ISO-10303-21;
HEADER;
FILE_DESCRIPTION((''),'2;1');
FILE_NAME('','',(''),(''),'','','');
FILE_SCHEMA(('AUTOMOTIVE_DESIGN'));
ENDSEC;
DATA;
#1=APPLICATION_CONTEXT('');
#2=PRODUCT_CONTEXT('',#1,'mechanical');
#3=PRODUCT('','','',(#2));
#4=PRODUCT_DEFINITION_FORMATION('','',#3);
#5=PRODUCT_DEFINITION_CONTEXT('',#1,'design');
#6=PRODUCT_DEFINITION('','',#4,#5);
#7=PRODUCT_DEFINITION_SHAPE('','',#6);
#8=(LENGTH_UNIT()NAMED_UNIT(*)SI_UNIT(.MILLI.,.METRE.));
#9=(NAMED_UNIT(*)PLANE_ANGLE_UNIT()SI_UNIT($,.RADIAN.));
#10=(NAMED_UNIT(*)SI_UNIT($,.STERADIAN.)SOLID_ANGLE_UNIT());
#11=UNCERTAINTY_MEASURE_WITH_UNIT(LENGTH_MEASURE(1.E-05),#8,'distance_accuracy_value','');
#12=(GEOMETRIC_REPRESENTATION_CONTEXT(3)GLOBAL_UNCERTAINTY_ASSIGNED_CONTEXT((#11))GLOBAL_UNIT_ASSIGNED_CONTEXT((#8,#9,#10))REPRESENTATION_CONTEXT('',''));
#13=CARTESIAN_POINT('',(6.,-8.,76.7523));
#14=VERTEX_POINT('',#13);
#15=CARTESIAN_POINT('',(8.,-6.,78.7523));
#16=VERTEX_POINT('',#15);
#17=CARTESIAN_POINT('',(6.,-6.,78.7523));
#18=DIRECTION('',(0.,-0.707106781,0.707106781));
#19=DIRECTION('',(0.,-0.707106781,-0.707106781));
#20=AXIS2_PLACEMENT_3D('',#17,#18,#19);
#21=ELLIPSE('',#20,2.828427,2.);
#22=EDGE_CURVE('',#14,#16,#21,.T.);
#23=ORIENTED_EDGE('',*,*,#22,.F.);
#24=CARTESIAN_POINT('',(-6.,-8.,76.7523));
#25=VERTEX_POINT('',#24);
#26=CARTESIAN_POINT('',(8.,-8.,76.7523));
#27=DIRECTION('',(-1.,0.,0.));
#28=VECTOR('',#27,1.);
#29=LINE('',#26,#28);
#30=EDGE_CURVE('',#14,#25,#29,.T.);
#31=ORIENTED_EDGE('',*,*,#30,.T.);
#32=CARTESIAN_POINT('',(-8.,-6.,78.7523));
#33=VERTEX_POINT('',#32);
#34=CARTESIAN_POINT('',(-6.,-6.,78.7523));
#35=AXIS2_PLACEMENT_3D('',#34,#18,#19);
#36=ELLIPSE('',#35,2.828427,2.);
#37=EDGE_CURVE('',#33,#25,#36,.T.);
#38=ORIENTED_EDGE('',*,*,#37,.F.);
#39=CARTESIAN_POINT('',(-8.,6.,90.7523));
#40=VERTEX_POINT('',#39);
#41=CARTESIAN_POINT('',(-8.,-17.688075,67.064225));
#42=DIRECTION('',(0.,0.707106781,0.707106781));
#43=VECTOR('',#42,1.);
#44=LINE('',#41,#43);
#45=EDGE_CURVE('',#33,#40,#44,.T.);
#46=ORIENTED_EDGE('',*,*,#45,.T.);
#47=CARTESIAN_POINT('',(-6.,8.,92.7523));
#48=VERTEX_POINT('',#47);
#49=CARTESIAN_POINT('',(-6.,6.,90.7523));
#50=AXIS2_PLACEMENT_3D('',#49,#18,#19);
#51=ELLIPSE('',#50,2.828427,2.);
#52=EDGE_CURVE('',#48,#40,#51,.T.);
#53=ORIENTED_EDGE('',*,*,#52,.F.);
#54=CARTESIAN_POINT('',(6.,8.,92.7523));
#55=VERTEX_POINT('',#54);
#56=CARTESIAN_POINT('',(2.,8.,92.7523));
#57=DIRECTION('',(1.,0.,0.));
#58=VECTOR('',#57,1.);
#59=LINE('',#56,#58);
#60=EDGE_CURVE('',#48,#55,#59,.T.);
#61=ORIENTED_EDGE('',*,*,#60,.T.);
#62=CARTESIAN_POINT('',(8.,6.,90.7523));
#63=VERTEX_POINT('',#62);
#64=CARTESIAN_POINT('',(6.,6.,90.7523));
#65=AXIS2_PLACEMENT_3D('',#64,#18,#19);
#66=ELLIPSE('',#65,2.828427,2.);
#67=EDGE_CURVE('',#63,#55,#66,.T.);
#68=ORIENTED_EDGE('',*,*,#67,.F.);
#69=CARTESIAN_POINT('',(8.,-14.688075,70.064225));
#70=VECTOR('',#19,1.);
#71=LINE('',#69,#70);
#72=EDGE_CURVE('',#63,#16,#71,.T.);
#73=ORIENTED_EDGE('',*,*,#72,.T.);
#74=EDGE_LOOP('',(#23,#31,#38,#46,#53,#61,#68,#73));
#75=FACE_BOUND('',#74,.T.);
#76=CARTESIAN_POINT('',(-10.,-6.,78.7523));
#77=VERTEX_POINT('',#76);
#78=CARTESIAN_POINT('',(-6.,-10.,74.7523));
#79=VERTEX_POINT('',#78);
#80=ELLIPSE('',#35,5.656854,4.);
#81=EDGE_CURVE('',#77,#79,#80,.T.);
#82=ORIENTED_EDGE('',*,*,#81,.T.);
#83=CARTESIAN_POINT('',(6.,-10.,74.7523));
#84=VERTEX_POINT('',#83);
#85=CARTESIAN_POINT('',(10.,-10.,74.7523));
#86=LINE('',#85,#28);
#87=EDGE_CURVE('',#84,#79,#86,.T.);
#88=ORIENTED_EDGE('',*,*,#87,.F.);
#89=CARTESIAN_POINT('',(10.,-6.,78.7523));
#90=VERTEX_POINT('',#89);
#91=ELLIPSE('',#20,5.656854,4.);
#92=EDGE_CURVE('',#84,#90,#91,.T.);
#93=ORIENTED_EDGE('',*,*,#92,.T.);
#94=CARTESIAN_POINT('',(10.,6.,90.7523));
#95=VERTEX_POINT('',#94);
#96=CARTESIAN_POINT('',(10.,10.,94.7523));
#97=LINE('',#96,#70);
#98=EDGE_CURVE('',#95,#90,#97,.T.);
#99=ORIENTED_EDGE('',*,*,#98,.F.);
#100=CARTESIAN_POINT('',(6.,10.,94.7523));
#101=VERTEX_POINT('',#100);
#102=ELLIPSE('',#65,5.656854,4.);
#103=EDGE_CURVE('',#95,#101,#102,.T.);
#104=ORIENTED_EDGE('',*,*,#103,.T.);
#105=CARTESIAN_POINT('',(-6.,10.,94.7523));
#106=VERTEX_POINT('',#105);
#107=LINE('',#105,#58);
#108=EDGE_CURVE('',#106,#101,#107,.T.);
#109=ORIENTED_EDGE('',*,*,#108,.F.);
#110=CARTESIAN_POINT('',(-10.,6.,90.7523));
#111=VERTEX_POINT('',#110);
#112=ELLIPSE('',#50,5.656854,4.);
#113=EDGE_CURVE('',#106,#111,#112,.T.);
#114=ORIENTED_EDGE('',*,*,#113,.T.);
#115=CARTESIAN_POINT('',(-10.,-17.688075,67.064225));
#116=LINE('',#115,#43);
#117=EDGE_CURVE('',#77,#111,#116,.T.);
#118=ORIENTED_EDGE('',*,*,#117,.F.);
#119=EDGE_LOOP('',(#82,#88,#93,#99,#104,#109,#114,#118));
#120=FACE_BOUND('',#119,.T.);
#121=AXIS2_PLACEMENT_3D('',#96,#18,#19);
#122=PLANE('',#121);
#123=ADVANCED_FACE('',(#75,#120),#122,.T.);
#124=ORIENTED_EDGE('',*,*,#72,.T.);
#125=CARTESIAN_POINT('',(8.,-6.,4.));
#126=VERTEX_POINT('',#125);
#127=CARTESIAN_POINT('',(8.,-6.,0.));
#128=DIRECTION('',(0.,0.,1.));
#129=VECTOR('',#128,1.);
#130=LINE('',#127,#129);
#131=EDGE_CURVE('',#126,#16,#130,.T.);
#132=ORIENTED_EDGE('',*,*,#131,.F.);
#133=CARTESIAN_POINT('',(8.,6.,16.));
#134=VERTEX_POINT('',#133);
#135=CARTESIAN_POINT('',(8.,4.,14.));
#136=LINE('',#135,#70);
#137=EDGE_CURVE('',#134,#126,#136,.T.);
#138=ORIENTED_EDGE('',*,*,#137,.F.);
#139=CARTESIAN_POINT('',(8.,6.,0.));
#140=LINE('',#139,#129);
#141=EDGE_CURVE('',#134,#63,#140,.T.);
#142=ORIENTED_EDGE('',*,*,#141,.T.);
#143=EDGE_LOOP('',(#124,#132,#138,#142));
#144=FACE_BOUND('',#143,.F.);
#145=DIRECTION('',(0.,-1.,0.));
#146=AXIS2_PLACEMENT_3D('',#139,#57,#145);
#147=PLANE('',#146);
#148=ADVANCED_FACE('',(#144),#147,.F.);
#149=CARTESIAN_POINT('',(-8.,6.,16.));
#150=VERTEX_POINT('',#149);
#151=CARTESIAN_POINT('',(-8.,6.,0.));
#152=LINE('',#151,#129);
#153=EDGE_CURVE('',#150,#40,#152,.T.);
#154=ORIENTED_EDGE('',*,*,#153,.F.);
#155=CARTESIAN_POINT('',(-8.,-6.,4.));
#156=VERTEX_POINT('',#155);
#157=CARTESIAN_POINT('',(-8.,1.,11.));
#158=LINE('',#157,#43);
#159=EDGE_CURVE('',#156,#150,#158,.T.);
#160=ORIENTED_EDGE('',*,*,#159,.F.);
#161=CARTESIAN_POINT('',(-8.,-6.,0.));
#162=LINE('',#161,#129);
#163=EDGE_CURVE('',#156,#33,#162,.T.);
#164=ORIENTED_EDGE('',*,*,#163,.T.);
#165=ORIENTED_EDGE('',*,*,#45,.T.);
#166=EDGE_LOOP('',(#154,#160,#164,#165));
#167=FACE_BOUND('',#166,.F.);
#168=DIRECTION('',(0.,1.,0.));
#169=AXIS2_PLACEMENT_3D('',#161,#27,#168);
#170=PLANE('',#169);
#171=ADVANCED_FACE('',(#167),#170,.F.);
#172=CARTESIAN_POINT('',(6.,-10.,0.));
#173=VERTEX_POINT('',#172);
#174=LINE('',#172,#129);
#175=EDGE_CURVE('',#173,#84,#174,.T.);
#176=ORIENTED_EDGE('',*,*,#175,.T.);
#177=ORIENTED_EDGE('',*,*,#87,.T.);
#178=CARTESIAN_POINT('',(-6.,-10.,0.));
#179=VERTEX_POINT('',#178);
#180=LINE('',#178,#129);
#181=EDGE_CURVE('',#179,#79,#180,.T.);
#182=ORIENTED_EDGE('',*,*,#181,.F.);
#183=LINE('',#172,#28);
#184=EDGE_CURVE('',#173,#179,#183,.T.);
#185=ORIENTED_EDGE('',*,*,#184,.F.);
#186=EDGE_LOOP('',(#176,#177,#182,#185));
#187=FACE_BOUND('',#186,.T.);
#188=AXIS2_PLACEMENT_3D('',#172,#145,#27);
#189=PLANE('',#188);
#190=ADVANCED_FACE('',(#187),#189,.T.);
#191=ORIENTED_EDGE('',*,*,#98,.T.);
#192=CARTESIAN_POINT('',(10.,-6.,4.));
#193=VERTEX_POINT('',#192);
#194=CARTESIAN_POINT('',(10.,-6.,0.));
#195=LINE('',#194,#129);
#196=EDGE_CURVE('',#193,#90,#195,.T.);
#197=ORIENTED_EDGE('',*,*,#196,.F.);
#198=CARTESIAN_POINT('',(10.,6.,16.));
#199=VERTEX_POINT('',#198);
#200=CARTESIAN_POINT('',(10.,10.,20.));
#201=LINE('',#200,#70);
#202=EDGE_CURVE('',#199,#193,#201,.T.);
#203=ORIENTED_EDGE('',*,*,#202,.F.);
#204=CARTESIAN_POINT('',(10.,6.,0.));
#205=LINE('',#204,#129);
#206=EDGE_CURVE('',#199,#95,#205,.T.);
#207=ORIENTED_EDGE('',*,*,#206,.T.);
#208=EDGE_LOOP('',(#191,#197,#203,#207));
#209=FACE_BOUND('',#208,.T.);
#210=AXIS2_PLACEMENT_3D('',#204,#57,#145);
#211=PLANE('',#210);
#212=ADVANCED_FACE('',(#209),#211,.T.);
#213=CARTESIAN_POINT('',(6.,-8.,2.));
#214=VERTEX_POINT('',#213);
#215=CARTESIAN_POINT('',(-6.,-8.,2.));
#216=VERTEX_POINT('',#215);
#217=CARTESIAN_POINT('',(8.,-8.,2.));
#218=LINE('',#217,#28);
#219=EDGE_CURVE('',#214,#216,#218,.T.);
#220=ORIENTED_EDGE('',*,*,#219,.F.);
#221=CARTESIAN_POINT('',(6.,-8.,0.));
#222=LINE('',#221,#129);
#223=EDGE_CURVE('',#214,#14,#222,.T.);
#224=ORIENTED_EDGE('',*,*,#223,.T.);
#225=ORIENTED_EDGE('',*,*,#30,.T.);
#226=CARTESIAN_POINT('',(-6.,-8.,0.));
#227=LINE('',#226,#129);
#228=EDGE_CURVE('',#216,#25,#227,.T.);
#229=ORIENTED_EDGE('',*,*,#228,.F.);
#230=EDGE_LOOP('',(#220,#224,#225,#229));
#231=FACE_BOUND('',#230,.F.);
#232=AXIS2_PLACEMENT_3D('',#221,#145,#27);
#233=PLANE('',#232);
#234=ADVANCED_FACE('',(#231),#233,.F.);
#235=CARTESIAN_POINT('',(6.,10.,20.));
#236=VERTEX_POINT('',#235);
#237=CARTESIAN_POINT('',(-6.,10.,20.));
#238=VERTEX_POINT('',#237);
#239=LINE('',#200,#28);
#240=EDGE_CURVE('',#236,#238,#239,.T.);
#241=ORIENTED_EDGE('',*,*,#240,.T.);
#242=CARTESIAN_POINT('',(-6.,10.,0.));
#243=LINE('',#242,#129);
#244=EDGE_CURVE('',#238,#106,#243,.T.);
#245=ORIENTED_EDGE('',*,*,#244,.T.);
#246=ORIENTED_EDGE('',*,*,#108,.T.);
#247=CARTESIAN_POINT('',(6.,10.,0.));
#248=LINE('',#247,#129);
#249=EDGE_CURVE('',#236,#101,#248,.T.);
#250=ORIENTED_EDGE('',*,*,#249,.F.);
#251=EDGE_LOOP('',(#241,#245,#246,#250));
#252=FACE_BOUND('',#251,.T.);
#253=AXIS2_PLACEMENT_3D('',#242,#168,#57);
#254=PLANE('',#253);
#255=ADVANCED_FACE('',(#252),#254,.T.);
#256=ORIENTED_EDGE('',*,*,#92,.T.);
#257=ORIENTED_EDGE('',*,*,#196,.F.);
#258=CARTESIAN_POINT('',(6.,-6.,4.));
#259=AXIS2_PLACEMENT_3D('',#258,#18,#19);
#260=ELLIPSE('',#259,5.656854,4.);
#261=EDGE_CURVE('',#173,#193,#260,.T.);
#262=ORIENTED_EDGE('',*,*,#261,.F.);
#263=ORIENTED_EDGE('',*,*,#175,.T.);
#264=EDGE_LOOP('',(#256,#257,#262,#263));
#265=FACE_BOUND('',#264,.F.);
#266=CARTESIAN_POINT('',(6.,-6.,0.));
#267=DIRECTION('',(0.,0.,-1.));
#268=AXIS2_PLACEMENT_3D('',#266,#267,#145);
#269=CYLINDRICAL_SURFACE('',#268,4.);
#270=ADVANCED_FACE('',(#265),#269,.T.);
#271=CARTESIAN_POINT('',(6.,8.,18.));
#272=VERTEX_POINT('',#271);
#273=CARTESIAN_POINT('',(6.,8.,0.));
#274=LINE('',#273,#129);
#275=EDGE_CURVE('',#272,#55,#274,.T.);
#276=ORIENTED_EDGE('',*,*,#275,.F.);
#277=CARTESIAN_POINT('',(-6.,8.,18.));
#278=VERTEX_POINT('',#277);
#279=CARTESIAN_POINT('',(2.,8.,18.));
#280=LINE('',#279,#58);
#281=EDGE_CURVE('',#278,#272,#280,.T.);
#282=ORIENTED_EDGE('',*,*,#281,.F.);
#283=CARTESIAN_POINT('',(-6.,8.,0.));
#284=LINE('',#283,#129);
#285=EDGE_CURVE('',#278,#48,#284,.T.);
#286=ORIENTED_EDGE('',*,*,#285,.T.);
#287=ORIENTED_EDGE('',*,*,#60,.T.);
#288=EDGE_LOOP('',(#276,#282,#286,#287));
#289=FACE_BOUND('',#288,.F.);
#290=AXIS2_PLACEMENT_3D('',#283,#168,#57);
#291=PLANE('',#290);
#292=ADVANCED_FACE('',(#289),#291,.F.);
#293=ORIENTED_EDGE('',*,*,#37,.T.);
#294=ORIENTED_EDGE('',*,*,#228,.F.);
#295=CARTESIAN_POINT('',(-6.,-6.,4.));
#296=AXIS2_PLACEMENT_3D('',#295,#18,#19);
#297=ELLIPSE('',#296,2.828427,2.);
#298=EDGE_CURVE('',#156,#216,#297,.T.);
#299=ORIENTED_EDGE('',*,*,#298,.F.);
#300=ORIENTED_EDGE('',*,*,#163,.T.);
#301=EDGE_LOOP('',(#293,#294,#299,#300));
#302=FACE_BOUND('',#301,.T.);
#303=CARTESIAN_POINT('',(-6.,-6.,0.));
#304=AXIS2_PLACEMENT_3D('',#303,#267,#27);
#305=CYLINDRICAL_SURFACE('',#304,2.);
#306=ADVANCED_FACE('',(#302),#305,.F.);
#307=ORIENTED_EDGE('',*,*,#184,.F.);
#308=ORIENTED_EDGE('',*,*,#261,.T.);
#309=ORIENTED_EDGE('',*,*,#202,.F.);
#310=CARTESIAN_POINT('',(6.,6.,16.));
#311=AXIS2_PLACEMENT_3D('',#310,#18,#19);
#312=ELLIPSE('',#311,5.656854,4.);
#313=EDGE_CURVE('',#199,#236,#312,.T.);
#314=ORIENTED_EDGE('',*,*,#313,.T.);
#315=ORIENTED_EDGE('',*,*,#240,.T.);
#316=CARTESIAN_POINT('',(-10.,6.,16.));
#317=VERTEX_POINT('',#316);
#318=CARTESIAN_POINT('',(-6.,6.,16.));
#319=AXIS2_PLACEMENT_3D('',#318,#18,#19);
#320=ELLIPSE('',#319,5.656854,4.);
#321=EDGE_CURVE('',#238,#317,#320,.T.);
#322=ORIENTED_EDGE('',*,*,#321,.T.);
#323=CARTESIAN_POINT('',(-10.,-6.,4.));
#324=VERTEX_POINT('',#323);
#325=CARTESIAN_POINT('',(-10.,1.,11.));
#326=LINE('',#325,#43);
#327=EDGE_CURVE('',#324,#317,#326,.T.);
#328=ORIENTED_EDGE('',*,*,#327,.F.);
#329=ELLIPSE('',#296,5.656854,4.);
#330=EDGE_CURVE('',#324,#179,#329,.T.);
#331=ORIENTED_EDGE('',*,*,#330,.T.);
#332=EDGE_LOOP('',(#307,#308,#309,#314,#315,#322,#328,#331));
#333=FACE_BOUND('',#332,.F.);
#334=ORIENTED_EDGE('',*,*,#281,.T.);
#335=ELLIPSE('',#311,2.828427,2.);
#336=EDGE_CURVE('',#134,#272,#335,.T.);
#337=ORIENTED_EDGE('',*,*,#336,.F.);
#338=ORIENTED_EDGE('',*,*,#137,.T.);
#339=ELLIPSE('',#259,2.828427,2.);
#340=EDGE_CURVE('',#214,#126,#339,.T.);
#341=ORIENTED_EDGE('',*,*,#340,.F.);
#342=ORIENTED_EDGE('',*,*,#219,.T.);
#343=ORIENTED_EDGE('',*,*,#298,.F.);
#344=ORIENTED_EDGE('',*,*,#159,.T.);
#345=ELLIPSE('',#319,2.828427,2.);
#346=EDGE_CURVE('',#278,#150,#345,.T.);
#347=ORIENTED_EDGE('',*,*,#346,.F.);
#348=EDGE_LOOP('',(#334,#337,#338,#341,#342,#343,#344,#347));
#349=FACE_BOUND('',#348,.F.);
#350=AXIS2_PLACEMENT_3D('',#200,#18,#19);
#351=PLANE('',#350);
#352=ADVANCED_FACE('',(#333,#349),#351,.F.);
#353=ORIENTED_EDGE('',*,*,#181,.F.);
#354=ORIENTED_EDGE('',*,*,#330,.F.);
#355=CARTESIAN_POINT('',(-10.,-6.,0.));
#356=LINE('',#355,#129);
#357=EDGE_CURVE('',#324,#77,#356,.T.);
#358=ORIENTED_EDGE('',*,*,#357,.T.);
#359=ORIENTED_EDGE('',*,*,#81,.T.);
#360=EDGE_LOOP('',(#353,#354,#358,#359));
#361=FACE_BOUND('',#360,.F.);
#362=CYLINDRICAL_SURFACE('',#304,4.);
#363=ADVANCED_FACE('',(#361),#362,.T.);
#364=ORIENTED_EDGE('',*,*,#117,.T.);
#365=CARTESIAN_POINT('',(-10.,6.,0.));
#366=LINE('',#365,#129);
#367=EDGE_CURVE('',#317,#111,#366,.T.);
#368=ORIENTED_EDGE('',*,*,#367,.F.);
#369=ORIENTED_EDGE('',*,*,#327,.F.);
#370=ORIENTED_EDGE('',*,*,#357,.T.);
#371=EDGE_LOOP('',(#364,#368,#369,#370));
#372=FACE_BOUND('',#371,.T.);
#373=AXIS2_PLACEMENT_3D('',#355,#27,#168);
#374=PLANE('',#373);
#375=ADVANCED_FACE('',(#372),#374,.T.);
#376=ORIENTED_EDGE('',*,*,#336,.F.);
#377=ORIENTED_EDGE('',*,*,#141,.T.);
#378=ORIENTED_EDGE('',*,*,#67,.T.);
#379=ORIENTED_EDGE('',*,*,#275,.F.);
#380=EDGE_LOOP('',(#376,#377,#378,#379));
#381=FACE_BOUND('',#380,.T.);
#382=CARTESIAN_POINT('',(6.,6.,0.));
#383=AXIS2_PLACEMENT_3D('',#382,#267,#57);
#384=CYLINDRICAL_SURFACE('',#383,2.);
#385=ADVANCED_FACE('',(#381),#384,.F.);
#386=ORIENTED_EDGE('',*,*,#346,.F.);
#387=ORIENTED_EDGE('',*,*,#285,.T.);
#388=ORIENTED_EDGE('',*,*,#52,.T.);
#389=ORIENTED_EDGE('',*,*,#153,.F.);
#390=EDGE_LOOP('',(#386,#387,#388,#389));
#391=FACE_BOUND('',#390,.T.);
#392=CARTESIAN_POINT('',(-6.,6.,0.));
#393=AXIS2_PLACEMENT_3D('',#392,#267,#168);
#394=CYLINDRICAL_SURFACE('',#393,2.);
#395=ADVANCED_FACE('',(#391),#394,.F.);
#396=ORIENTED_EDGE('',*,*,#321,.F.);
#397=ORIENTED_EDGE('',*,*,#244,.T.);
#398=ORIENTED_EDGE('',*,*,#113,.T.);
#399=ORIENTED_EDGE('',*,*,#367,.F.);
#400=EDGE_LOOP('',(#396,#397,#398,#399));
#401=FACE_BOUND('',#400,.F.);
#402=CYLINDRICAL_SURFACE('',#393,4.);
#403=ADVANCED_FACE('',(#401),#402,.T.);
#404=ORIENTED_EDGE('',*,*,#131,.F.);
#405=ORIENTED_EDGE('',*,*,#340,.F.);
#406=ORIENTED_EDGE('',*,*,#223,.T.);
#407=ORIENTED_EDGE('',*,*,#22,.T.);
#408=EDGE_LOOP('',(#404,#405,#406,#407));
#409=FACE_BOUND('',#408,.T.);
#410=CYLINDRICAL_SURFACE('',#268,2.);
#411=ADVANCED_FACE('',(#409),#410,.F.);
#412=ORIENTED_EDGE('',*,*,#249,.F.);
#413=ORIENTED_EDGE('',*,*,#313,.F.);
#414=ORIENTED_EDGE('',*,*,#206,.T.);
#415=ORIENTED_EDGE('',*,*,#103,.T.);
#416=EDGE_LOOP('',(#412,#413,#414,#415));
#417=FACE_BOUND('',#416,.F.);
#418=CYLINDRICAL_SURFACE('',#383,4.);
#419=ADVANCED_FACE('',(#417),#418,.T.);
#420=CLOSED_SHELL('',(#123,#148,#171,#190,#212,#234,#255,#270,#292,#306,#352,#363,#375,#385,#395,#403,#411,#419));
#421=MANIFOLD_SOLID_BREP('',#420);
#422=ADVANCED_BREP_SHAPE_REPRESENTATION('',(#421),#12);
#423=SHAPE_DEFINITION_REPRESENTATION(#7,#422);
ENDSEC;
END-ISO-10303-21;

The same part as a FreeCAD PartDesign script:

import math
import FreeCAD as App
import Part
import Sketcher
Q = App.Units.Quantity


def add_polygon(sketch, points):
    """Adds a closed chain of lines whose ends are joined by coincident constraints."""
    first, n = sketch.GeometryCount, len(points)
    for a, b in zip(points, points[1:] + points[:1]):
        sketch.addGeometry(Part.LineSegment(App.Vector(*a, 0), App.Vector(*b, 0)), False)
    for i in range(n):
        sketch.addConstraint(Sketcher.Constraint("Coincident", first + i, 2, first + (i + 1) % n, 1))

doc = App.newDocument("Part")
params = doc.addObject("Spreadsheet::Sheet", "Params")
for row, (alias, value) in enumerate([
    ("sketch1_radius", "4 mm"),
    ("sketch1_radius2", "2 mm"),
    ("pad1_length", "94.7523 mm"),
    ("sketch2_width", "20 mm"),
], start=1):
    params.set(f"A{row}", alias)
    params.set(f"B{row}", "=" + value)
    params.setAlias(f"B{row}", alias)

body = doc.addObject("PartDesign::Body", "Body")

# Sketch on XY plane
sketch1 = body.newObject("Sketcher::SketchObject", "Sketch")
sketch1.AttachmentSupport = (doc.getObject("XY_Plane"), [""])
sketch1.MapMode = "FlatFace"
sketch1.addGeometry([
    Part.LineSegment(App.Vector(-10, 6, 0), App.Vector(-10, -6, 0)),  # 0
    Part.ArcOfCircle(Part.Circle(App.Vector(-6, -6, 0), App.Vector(0, 0, 1), 4), math.radians(180), math.radians(270)),  # 1
    Part.LineSegment(App.Vector(-6, -10, 0), App.Vector(6, -10, 0)),  # 2
    Part.ArcOfCircle(Part.Circle(App.Vector(6, -6, 0), App.Vector(0, 0, 1), 4), math.radians(-90), math.radians(0)),  # 3
    Part.LineSegment(App.Vector(10, -6, 0), App.Vector(10, 6, 0)),  # 4
    Part.ArcOfCircle(Part.Circle(App.Vector(6, 6, 0), App.Vector(0, 0, 1), 4), math.radians(0), math.radians(90)),  # 5
    Part.LineSegment(App.Vector(6, 10, 0), App.Vector(-6, 10, 0)),  # 6
    Part.ArcOfCircle(Part.Circle(App.Vector(-6, 6, 0), App.Vector(0, 0, 1), 4), math.radians(90), math.radians(180)),  # 7
    Part.ArcOfCircle(Part.Circle(App.Vector(-6, 6, 0), App.Vector(0, 0, 1), 2), math.radians(90), math.radians(180)),  # 8
    Part.LineSegment(App.Vector(-6, 8, 0), App.Vector(6, 8, 0)),  # 9
    Part.ArcOfCircle(Part.Circle(App.Vector(6, 6, 0), App.Vector(0, 0, 1), 2), math.radians(0), math.radians(90)),  # 10
    Part.LineSegment(App.Vector(8, 6, 0), App.Vector(8, -6, 0)),  # 11
    Part.ArcOfCircle(Part.Circle(App.Vector(6, -6, 0), App.Vector(0, 0, 1), 2), math.radians(-90), math.radians(0)),  # 12
    Part.LineSegment(App.Vector(6, -8, 0), App.Vector(-6, -8, 0)),  # 13
    Part.ArcOfCircle(Part.Circle(App.Vector(-6, -6, 0), App.Vector(0, 0, 1), 2), math.radians(180), math.radians(270)),  # 14
    Part.LineSegment(App.Vector(-8, -6, 0), App.Vector(-8, 6, 0)),  # 15
], False)
sketch1.addConstraint([
    Sketcher.Constraint("Tangent", 0, 2, 1, 1),
    Sketcher.Constraint("Tangent", 1, 2, 2, 1),
    Sketcher.Constraint("Tangent", 2, 2, 3, 1),
    Sketcher.Constraint("Tangent", 3, 2, 4, 1),
    Sketcher.Constraint("Tangent", 4, 2, 5, 1),
    Sketcher.Constraint("Tangent", 5, 2, 6, 1),
    Sketcher.Constraint("Tangent", 6, 2, 7, 1),
    Sketcher.Constraint("Tangent", 7, 2, 0, 1),
    Sketcher.Constraint("Tangent", 8, 1, 9, 1),
    Sketcher.Constraint("Tangent", 9, 2, 10, 2),
    Sketcher.Constraint("Tangent", 10, 1, 11, 1),
    Sketcher.Constraint("Tangent", 11, 2, 12, 2),
    Sketcher.Constraint("Tangent", 12, 1, 13, 1),
    Sketcher.Constraint("Tangent", 13, 2, 14, 2),
    Sketcher.Constraint("Tangent", 14, 1, 15, 1),
    Sketcher.Constraint("Tangent", 15, 2, 8, 2),
    Sketcher.Constraint("Vertical", 0),
    Sketcher.Constraint("Horizontal", 2),
    Sketcher.Constraint("Vertical", 4),
    Sketcher.Constraint("Horizontal", 6),
    Sketcher.Constraint("Horizontal", 9),
    Sketcher.Constraint("Vertical", 11),
    Sketcher.Constraint("Horizontal", 13),
    Sketcher.Constraint("Vertical", 15),
    Sketcher.Constraint("Coincident", 8, 3, 7, 3),
    Sketcher.Constraint("Coincident", 10, 3, 5, 3),
    Sketcher.Constraint("Coincident", 12, 3, 3, 3),
    Sketcher.Constraint("Equal", 1, 3),
    Sketcher.Constraint("Equal", 3, 5),
    Sketcher.Constraint("Equal", 5, 7),
    Sketcher.Constraint("Equal", 12, 14),
    Sketcher.Constraint("Symmetric", 1, 3, 5, 3, -1, 1),
    Sketcher.Constraint("Equal", 13, 0),
    Sketcher.Constraint("Radius", 1, Q("4 mm")),
    Sketcher.Constraint("Radius", 8, Q("2 mm")),
    Sketcher.Constraint("DistanceX", 0, 2, -1, 1, Q("10 mm")),
])
sketch1.setExpression("Constraints[33]", "Params.sketch1_radius")
sketch1.setExpression("Constraints[34]", "Params.sketch1_radius2")
pad1 = body.newObject("PartDesign::Pad", "Pad")
pad1.Profile = sketch1
pad1.setExpression("Length", "Params.pad1_length")

# Sketch on YZ plane
sketch2 = body.newObject("Sketcher::SketchObject", "Sketch001")
sketch2.AttachmentSupport = (doc.getObject("YZ_Plane"), [""])
sketch2.MapMode = "FlatFace"
sketch2.AttachmentOffset = App.Placement(App.Vector(0, 0, 10), App.Rotation())
add_polygon(sketch2, [(10, 95), (-10, 95), (-10, 75)])  # lines 0-2
add_polygon(sketch2, [(10, 0), (10, 20), (-10, 0)])  # lines 3-5
sketch2.addConstraint([
    Sketcher.Constraint("Horizontal", 0),
    Sketcher.Constraint("Vertical", 1),
    Sketcher.Constraint("Vertical", 3),
    Sketcher.Constraint("Horizontal", 5),
    Sketcher.Constraint("Symmetric", 4, 2, 5, 2, -1, 1),
    Sketcher.Constraint("Parallel", 2, 4),
    Sketcher.Constraint("Vertical", 2, 2, 3, 2),
    Sketcher.Constraint("Vertical", 1, 2, 4, 2),
    Sketcher.Constraint("Equal", 5, 1),
    Sketcher.Constraint("DistanceX", 0, 2, 0, 1, Q("20 mm")),
    Sketcher.Constraint("DistanceY", -1, 1, 0, 2, Q("94.7523 mm")),
])
sketch2.setExpression("Constraints[15]", "Params.sketch2_width")
pocket1 = body.newObject("PartDesign::Pocket", "Pocket")
pocket1.Profile = sketch2
pocket1.Type = "ThroughAll"

doc.recompute()
